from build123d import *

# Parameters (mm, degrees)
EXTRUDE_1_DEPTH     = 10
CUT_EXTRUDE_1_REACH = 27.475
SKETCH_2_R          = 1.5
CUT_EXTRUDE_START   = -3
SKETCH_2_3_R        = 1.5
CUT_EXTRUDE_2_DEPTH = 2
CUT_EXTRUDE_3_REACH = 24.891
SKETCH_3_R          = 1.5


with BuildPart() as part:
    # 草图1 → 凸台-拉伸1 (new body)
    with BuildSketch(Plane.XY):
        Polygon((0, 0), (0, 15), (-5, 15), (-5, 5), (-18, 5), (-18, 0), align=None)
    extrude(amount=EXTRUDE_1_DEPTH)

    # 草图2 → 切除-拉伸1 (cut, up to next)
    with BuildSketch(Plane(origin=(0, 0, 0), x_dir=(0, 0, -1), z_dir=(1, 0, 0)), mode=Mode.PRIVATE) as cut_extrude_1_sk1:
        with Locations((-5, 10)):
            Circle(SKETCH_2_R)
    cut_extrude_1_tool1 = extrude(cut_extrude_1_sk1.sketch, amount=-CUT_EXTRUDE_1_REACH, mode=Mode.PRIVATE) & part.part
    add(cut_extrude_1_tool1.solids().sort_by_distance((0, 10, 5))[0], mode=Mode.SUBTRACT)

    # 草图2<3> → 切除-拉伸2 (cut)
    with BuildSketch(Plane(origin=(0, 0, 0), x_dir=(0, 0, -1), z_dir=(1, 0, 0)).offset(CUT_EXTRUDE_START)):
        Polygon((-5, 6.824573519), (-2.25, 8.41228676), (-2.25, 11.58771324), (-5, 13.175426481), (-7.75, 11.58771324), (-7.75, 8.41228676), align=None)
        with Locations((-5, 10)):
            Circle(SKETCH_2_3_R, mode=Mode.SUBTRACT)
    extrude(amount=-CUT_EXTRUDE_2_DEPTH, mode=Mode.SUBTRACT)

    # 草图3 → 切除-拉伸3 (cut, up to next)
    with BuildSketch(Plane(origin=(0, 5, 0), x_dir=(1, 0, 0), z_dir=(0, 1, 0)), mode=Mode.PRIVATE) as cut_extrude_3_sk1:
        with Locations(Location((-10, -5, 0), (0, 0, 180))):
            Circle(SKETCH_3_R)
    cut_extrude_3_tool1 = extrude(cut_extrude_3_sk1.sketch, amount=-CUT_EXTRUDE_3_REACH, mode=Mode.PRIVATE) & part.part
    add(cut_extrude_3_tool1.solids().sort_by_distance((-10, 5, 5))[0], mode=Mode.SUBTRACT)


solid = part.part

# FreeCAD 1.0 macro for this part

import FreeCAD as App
import Part
import Sketcher
from FreeCAD import Vector
Q = App.Units.Quantity


def add_polygon(sketch, points):
    """Adds a closed chain of lines whose ends are joined by coincident constraints."""
    first, n = sketch.GeometryCount, len(points)
    for a, b in zip(points, points[1:] + points[:1]):
        sketch.addGeometry(Part.LineSegment(App.Vector(*a, 0), App.Vector(*b, 0)), False)
    for i in range(n):
        sketch.addConstraint(Sketcher.Constraint("Coincident", first + i, 2, first + (i + 1) % n, 1))

doc = App.newDocument("Part")
params = doc.addObject("Spreadsheet::Sheet", "Params")
for row, (alias, value) in enumerate([
    ("sketch1_width", "5 mm"),
    ("sketch1_width2", "13 mm"),
    ("sketch1_height", "15 mm"),
    ("pad1_length", "10 mm"),
    ("sketch2_diameter", "3 mm"),
    ("sketch3_diameter", "3 mm"),
    ("pocket2_length", "2 mm"),
    ("sketch4_diameter", "3 mm"),
], start=1):
    params.set(f"A{row}", alias)
    params.set(f"B{row}", "=" + value)
    params.setAlias(f"B{row}", alias)

body = doc.addObject("PartDesign::Body", "Body")

# Sketch on XY plane
sketch1 = body.newObject("Sketcher::SketchObject", "Sketch")
sketch1.AttachmentSupport = (doc.getObject("XY_Plane"), [""])
sketch1.MapMode = "FlatFace"
add_polygon(sketch1, [(0, 0), (0, 15), (-5, 15), (-5, 5), (-18, 5), (-18, 0)])  # lines 0-5
sketch1.addConstraint([
    Sketcher.Constraint("Vertical", 0),
    Sketcher.Constraint("Horizontal", 1),
    Sketcher.Constraint("Vertical", 2),
    Sketcher.Constraint("Horizontal", 3),
    Sketcher.Constraint("Vertical", 4),
    Sketcher.Constraint("Horizontal", 5),
    Sketcher.Constraint("Coincident", 5, 2, -1, 1),
    Sketcher.Constraint("Equal", 1, 4),
    Sketcher.Constraint("DistanceX", 1, 2, 1, 1, Q("5 mm")),
    Sketcher.Constraint("DistanceX", 3, 2, 3, 1, Q("13 mm")),
    Sketcher.Constraint("DistanceY", 0, 1, 0, 2, Q("15 mm")),
])
sketch1.setExpression("Constraints[14]", "Params.sketch1_width")
sketch1.setExpression("Constraints[15]", "Params.sketch1_width2")
sketch1.setExpression("Constraints[16]", "Params.sketch1_height")
pad1 = body.newObject("PartDesign::Pad", "Pad")
pad1.Profile = sketch1
pad1.setExpression("Length", "Params.pad1_length")

# Sketch on YZ plane
sketch2 = body.newObject("Sketcher::SketchObject", "Sketch001")
sketch2.AttachmentSupport = (doc.getObject("YZ_Plane"), [""])
sketch2.MapMode = "FlatFace"
sketch2.addGeometry(Part.Circle(Vector(10, 5, 0), Vector(0, 0, 1), 1.5), False)
sketch2.addConstraint([
    Sketcher.Constraint("Diameter", 0, Q("3 mm")),
    Sketcher.Constraint("DistanceX", -1, 1, 0, 3, Q("10 mm")),
    Sketcher.Constraint("DistanceY", -1, 1, 0, 3, Q("5 mm")),
])
sketch2.setExpression("Constraints[0]", "Params.sketch2_diameter")
pocket1 = body.newObject("PartDesign::Pocket", "Pocket")
pocket1.Profile = sketch2
pocket1.Type = "UpToFirst"

# Sketch on YZ plane
sketch3 = body.newObject("Sketcher::SketchObject", "Sketch002")
sketch3.AttachmentSupport = (doc.getObject("YZ_Plane"), [""])
sketch3.MapMode = "FlatFace"
sketch3.AttachmentOffset = App.Placement(Vector(0, 0, -3), App.Rotation())
add_polygon(sketch3, [(6.824574, 5), (8.412287, 2.25), (11.587713, 2.25), (13.175426, 5), (11.587713, 7.75), (8.412287, 7.75)])  # lines 0-5
sketch3.addGeometry(Part.Circle(Vector(10, 5, 0), Vector(0, 0, 1), 1.5), False)  # 6
sketch3.addConstraint([
    Sketcher.Constraint("Horizontal", 1),
    Sketcher.Constraint("Horizontal", 4),
    Sketcher.Constraint("Parallel", 0, 3),
    Sketcher.Constraint("Parallel", 2, 5),
    Sketcher.Constraint("Horizontal", 6, 3, 2, 2),
    Sketcher.Constraint("Horizontal", 2, 2, 5, 2),
    Sketcher.Constraint("Vertical", 1, 2, 3, 2),
    Sketcher.Constraint("Vertical", 0, 2, 4, 2),
    Sketcher.Constraint("Diameter", 6, Q("3 mm")),
    Sketcher.Constraint("Angle", 0, Q("-60 deg")),
    Sketcher.Constraint("DistanceX", -1, 1, 6, 3, Q("10 mm")),
    Sketcher.Constraint("DistanceY", -1, 1, 6, 3, Q("5 mm")),
    Sketcher.Constraint("DistanceY", 1, 2, 3, 2, Q("5.5 mm")),
    Sketcher.Constraint("DistanceX", 1, 1, 1, 2, Q("3.175426 mm")),
    Sketcher.Constraint("DistanceX", -1, 1, 0, 2, Q("8.412287 mm")),
])
sketch3.setExpression("Constraints[14]", "Params.sketch3_diameter")
pocket2 = body.newObject("PartDesign::Pocket", "Pocket001")
pocket2.Profile = sketch3
pocket2.setExpression("Length", "Params.pocket2_length")

# Sketch on XZ plane
sketch4 = body.newObject("Sketcher::SketchObject", "Sketch003")
sketch4.AttachmentSupport = (doc.getObject("XZ_Plane"), [""])
sketch4.MapMode = "FlatFace"
sketch4.AttachmentOffset = App.Placement(Vector(0, 0, -5), App.Rotation())
sketch4.addGeometry(Part.Circle(Vector(-10, 5, 0), Vector(0, 0, 1), 1.5), False)
sketch4.addConstraint([
    Sketcher.Constraint("Diameter", 0, Q("3 mm")),
    Sketcher.Constraint("DistanceX", 0, 3, -1, 1, Q("10 mm")),
    Sketcher.Constraint("DistanceY", -1, 1, 0, 3, Q("5 mm")),
])
sketch4.setExpression("Constraints[0]", "Params.sketch4_diameter")
pocket3 = body.newObject("PartDesign::Pocket", "Pocket002")
pocket3.Profile = sketch4
pocket3.Type = "UpToFirst"
pocket3.Reversed = True

doc.recompute()
